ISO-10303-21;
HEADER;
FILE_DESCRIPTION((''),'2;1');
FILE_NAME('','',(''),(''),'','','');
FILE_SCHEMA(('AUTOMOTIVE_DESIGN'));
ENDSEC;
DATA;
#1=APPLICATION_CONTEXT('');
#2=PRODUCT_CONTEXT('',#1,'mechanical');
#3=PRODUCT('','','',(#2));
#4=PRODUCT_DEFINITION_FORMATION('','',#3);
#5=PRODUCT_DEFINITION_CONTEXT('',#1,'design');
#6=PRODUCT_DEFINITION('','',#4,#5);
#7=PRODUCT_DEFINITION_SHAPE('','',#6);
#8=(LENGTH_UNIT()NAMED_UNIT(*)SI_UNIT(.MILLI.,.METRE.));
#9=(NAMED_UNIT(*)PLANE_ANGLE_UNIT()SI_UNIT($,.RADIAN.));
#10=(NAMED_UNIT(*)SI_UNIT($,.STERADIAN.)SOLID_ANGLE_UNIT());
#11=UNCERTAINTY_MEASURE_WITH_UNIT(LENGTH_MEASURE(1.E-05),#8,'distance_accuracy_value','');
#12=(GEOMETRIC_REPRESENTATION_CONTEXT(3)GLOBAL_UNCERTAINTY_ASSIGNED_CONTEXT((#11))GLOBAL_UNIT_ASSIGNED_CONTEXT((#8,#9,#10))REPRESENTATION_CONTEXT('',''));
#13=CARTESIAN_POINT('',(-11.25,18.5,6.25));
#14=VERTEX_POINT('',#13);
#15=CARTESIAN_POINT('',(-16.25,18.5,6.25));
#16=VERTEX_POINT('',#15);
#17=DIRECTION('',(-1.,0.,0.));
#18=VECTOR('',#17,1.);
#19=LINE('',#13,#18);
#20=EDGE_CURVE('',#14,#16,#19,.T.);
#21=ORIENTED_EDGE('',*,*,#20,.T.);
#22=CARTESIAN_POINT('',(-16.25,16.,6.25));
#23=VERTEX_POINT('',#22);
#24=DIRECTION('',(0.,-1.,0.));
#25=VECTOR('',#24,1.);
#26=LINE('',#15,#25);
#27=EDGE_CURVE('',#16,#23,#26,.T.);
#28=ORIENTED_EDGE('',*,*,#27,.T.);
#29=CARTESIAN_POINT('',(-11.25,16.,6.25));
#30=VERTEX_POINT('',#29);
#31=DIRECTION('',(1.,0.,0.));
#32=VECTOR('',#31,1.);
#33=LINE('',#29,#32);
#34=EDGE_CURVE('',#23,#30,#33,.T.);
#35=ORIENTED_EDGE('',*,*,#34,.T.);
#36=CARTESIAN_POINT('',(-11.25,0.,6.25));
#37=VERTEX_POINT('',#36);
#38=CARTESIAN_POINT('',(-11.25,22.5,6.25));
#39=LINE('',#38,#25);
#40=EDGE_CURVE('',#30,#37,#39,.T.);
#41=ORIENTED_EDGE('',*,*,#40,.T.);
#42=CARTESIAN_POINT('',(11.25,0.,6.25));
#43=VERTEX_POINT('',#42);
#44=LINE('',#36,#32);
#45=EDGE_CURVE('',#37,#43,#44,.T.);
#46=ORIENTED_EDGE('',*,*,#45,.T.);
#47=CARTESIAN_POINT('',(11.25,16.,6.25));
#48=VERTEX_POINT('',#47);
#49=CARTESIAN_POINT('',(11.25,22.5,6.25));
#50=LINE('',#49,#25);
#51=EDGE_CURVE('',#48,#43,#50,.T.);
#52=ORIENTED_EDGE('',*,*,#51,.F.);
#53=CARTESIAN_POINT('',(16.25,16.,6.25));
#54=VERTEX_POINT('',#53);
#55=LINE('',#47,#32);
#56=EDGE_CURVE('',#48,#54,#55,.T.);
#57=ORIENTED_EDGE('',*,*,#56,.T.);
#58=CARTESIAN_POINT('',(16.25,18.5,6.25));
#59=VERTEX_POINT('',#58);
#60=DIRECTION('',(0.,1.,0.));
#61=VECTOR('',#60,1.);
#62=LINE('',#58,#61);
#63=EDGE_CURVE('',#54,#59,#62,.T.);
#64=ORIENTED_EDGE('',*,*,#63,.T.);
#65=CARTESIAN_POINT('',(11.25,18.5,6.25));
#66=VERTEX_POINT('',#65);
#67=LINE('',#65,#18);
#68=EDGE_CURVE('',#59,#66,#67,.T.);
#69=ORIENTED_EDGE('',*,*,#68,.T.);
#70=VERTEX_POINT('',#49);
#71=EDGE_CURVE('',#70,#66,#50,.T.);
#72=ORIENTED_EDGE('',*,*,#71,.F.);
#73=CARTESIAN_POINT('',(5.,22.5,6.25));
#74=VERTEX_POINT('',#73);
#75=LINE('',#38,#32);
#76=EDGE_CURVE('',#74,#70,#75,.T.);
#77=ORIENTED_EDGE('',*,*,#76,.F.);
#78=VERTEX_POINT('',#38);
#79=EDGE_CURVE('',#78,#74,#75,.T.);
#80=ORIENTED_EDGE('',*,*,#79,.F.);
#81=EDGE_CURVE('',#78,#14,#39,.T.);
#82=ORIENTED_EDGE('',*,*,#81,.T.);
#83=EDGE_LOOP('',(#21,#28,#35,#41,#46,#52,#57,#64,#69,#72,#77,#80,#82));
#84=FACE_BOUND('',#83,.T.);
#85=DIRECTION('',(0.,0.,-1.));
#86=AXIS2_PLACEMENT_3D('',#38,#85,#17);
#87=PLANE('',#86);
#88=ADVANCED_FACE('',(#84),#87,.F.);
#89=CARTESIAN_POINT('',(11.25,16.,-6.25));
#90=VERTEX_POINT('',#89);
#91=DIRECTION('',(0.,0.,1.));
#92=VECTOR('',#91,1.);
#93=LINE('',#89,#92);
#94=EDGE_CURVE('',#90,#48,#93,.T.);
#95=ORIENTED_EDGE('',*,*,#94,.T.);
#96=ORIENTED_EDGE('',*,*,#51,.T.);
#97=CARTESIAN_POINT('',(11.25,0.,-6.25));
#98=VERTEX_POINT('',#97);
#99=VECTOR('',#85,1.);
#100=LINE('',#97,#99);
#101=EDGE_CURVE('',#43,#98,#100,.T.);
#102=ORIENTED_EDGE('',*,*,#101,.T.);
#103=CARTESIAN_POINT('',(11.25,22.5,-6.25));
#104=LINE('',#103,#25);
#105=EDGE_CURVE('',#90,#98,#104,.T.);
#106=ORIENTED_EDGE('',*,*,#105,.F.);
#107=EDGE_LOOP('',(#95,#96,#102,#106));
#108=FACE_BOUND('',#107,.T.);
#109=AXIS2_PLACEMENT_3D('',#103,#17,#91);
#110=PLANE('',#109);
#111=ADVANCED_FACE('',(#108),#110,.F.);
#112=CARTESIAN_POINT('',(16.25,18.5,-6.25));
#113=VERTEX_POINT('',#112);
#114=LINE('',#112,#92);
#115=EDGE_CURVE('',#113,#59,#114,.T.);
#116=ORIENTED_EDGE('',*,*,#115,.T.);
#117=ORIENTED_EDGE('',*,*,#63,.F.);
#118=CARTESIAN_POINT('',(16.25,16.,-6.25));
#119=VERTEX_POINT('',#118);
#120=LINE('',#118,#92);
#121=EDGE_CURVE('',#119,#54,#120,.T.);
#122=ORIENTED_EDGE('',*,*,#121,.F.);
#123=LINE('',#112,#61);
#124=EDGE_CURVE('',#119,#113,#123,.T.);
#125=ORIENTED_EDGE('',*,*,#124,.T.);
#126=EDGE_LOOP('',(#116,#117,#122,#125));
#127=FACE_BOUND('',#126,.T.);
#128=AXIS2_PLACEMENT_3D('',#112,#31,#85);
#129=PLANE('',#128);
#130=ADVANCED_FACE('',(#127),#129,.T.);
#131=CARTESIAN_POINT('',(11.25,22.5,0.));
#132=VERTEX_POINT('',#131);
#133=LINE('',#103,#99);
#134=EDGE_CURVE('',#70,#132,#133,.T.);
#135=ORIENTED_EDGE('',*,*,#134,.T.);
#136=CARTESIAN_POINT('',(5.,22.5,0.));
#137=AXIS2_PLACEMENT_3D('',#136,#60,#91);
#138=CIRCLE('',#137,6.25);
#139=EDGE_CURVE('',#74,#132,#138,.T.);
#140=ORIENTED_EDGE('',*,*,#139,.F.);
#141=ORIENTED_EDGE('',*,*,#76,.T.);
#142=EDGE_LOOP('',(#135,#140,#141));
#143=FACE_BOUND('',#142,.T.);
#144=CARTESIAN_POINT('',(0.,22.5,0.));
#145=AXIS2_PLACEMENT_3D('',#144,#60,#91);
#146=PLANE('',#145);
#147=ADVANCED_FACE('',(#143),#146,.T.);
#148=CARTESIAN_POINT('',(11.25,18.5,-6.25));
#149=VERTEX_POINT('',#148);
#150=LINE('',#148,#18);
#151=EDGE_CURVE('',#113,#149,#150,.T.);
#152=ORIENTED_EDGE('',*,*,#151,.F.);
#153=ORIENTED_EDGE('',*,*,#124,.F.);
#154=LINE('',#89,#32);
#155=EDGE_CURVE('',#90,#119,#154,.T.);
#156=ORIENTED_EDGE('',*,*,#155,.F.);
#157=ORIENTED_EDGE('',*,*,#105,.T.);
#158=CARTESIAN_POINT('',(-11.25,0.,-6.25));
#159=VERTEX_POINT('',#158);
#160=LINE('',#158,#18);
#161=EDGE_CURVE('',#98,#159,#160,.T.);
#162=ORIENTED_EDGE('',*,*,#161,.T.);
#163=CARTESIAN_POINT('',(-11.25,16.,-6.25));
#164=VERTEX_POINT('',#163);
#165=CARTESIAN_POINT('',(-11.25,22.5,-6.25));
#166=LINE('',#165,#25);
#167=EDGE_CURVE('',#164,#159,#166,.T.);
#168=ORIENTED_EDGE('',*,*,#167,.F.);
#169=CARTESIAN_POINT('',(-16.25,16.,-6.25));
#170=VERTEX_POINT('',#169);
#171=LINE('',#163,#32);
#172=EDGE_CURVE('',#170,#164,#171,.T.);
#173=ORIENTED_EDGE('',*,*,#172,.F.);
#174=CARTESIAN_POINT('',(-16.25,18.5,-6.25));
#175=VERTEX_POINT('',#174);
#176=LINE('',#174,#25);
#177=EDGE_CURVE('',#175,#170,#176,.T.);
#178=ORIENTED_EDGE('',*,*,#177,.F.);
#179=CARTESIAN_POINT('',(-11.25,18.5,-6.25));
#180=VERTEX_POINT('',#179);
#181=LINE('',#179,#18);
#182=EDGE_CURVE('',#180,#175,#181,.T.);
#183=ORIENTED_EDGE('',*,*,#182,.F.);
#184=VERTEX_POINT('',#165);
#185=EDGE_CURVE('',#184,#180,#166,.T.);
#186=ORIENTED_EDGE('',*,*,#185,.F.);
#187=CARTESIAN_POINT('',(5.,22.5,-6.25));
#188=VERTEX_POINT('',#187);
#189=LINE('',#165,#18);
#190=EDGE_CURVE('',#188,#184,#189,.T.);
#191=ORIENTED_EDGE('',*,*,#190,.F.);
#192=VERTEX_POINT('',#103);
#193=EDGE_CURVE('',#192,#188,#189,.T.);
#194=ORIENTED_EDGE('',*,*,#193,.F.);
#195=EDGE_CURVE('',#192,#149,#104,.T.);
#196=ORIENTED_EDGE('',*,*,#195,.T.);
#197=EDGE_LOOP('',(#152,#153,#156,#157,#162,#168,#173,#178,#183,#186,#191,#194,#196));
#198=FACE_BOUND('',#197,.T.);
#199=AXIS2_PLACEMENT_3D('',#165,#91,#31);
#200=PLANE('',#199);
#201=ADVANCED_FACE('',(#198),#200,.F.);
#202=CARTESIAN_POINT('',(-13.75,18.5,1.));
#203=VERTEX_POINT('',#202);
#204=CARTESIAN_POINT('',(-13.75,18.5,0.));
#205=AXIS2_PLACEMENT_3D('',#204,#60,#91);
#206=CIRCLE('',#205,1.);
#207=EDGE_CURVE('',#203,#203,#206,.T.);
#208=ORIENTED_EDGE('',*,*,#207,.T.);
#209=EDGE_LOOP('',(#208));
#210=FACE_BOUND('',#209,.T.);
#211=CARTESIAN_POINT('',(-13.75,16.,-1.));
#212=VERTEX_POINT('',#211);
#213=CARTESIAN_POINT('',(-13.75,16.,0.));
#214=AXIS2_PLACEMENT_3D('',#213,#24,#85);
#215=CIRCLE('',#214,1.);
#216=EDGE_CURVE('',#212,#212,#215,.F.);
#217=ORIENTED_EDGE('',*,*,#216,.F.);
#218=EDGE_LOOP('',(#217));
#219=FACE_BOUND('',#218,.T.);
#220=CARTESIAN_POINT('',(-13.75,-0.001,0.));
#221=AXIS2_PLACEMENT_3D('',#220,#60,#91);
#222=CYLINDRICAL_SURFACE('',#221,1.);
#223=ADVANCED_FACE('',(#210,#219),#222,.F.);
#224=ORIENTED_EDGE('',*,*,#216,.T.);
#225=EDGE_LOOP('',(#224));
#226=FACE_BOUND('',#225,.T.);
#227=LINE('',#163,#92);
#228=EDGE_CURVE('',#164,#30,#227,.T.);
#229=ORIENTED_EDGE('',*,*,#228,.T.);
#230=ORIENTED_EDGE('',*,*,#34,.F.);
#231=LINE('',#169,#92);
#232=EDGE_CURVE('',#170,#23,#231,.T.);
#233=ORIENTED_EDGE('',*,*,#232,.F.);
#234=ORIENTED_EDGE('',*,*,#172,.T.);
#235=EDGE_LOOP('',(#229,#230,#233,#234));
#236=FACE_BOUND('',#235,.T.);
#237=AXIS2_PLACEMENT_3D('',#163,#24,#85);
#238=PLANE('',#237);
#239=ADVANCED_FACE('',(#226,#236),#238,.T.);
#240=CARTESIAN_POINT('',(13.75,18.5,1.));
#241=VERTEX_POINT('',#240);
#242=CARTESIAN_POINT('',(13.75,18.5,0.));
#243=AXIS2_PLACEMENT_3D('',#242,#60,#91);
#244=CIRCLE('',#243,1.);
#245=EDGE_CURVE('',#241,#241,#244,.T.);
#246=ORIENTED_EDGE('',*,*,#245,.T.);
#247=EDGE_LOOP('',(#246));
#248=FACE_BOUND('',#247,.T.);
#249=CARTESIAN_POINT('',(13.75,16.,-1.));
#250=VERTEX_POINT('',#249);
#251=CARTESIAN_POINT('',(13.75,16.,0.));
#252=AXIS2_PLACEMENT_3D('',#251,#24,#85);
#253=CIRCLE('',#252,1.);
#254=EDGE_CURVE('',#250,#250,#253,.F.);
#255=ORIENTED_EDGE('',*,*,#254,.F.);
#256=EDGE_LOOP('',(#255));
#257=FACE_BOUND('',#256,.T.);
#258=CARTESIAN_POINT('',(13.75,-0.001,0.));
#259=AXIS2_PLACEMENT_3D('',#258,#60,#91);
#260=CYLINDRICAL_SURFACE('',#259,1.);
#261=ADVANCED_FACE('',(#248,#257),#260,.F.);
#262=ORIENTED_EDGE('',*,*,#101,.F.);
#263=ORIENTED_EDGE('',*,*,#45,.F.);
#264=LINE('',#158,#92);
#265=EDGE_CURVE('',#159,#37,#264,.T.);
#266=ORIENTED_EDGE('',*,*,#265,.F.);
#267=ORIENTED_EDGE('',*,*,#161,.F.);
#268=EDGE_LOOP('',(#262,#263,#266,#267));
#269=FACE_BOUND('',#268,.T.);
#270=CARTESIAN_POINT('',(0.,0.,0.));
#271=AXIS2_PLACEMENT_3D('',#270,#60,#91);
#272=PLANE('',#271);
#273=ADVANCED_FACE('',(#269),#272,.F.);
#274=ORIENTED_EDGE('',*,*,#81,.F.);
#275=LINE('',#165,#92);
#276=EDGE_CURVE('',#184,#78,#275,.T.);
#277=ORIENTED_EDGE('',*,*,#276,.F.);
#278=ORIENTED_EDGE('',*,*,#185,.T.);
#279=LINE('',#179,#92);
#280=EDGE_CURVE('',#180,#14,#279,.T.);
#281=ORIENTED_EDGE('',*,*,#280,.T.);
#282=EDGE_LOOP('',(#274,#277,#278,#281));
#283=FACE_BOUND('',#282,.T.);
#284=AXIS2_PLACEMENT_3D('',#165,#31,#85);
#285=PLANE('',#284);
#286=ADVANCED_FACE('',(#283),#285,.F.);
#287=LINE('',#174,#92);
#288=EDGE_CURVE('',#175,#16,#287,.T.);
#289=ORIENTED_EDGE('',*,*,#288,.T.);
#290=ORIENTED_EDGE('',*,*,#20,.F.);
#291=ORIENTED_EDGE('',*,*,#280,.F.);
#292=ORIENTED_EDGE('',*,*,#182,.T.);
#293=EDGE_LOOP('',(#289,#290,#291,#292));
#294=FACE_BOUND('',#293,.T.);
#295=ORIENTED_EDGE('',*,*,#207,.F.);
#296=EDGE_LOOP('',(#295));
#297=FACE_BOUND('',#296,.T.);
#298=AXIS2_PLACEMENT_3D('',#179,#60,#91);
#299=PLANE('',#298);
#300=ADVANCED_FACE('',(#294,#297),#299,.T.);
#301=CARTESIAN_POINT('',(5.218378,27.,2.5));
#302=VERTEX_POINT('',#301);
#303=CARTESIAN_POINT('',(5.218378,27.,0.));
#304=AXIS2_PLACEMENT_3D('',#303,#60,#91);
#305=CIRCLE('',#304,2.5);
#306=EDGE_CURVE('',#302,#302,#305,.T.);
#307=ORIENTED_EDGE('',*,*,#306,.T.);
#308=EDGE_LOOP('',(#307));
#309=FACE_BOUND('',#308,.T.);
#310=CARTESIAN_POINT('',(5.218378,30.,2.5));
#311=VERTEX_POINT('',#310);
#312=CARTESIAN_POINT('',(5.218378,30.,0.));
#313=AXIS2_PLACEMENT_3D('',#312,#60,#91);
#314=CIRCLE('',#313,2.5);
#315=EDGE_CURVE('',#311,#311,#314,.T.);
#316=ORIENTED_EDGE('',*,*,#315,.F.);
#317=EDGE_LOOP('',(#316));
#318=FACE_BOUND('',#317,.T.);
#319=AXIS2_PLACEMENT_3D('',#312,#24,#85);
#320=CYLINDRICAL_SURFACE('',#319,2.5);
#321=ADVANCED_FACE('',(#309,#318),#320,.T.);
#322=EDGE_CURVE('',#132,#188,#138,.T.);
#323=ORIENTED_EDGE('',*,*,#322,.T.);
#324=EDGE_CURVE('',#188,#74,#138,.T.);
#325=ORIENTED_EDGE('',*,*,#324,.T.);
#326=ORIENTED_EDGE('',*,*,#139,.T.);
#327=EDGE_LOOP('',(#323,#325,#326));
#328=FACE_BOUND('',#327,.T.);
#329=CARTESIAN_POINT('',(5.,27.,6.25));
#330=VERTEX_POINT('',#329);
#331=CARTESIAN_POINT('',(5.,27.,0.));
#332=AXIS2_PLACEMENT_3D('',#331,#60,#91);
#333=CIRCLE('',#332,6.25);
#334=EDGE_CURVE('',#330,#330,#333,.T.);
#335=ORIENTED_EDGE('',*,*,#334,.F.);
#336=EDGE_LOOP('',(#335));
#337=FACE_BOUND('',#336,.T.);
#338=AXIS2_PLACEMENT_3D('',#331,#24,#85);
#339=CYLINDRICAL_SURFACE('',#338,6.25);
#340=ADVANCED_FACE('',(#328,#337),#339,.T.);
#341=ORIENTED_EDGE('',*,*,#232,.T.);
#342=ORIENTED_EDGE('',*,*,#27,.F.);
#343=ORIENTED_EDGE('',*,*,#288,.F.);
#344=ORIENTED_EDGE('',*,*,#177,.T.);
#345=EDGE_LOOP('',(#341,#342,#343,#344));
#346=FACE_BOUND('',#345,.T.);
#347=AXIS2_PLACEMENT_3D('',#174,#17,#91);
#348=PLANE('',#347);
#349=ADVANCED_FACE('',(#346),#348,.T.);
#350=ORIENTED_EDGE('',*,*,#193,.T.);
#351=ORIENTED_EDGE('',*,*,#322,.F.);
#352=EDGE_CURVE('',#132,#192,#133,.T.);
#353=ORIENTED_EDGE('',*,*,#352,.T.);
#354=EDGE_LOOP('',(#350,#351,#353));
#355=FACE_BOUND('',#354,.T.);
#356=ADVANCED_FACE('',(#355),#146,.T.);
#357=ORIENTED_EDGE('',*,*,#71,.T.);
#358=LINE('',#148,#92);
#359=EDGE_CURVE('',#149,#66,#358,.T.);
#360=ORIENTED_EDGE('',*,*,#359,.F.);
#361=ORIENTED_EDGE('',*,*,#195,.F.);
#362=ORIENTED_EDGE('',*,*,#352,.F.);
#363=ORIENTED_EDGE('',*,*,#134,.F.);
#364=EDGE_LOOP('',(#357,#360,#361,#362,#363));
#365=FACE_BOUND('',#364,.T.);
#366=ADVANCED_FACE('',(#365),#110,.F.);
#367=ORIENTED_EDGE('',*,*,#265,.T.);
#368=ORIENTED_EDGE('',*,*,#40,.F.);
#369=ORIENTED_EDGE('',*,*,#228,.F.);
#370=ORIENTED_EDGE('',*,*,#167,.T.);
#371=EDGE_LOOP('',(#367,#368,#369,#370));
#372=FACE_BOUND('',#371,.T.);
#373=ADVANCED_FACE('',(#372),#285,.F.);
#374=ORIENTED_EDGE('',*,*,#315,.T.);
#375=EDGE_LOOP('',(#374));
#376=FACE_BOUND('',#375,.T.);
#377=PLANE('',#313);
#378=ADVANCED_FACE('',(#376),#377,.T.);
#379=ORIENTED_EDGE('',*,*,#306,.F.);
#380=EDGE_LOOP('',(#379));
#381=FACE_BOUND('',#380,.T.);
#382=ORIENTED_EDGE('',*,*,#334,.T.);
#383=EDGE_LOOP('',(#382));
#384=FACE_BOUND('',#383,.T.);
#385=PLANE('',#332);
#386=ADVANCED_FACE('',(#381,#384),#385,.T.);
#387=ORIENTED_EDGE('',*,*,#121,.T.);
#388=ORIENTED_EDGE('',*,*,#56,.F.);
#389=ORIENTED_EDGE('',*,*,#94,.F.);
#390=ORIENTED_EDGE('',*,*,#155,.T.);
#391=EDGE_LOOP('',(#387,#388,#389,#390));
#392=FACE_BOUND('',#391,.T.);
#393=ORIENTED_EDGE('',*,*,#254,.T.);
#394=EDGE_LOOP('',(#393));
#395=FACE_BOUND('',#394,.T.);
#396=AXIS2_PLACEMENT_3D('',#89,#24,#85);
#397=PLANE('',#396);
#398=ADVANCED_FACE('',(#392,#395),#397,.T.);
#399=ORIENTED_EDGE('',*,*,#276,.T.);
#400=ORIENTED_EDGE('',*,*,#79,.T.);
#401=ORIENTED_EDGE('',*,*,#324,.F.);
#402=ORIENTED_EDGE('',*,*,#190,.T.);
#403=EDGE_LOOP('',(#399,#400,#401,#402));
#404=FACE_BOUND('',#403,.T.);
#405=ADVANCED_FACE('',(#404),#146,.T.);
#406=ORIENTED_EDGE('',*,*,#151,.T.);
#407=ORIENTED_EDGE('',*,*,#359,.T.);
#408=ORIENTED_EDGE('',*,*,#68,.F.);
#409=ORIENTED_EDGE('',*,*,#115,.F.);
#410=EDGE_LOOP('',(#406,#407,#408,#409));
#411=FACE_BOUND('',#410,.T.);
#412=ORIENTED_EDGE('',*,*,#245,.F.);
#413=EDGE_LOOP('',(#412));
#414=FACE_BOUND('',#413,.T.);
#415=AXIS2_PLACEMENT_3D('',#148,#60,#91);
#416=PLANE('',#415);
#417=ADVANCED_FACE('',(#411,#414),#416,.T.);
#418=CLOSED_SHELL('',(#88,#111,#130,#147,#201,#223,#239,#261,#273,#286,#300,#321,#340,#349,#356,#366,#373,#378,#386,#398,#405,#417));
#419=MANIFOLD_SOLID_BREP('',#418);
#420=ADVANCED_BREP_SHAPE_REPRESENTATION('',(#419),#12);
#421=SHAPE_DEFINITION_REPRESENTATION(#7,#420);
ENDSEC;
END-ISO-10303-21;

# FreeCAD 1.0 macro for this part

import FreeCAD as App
import Part
import Sketcher
Q = App.Units.Quantity


def add_polygon(sketch, points):
    """Adds a closed chain of lines whose ends are joined by coincident constraints."""
    first, n = sketch.GeometryCount, len(points)
    for a, b in zip(points, points[1:] + points[:1]):
        sketch.addGeometry(Part.LineSegment(App.Vector(*a, 0), App.Vector(*b, 0)), False)
    for i in range(n):
        sketch.addConstraint(Sketcher.Constraint("Coincident", first + i, 2, first + (i + 1) % n, 1))

doc = App.newDocument("Part")
body = doc.addObject("PartDesign::Body", "Body")

sketch1 = body.newObject("Sketcher::SketchObject", "Sketch")
sketch1.AttachmentSupport = (doc.getObject("XZ_Plane"), [""])
sketch1.MapMode = "FlatFace"
add_polygon(sketch1, [(-11, -6), (-11, 6), (11, 6), (11, -6)])
sketch1.addConstraint(Sketcher.Constraint("Vertical", 0))
sketch1.addConstraint(Sketcher.Constraint("Horizontal", 1))
sketch1.addConstraint(Sketcher.Constraint("Vertical", 2))
sketch1.addConstraint(Sketcher.Constraint("Horizontal", 3))
sketch1.addConstraint(Sketcher.Constraint("Symmetric", 0, 2, 2, 2, -1, 1))
sketch1.addConstraint(Sketcher.Constraint("DistanceX", 1, 1, 1, 2, Q("22.5 mm")))
sketch1.addConstraint(Sketcher.Constraint("DistanceY", 0, 1, 0, 2, Q("12.5 mm")))
pad1 = body.newObject("PartDesign::Pad", "Pad")
pad1.Profile = sketch1
pad1.Length = 22.5
pad1.Reversed = True

sketch2 = body.newObject("Sketcher::SketchObject", "Sketch001")
sketch2.AttachmentSupport = (doc.getObject("XY_Plane"), [""])
sketch2.MapMode = "FlatFace"
sketch2.AttachmentOffset = App.Placement(App.Vector(0, 0, 6.25), App.Rotation())
add_polygon(sketch2, [(11.2, 18.5), (11.2, 16), (16.2, 16), (16.2, 18.5)])
add_polygon(sketch2, [(-16.2, 18.5), (-16.2, 16), (-11.2, 16), (-11.2, 18.5)])
sketch2.addConstraint(Sketcher.Constraint("Vertical", 0))
sketch2.addConstraint(Sketcher.Constraint("Horizontal", 1))
sketch2.addConstraint(Sketcher.Constraint("Vertical", 2))
sketch2.addConstraint(Sketcher.Constraint("Horizontal", 3))
sketch2.addConstraint(Sketcher.Constraint("Vertical", 4))
sketch2.addConstraint(Sketcher.Constraint("Horizontal", 5))
sketch2.addConstraint(Sketcher.Constraint("Vertical", 6))
sketch2.addConstraint(Sketcher.Constraint("Horizontal", 7))
sketch2.addConstraint(Sketcher.Constraint("Symmetric", 1, 2, 4, 2, -2))
sketch2.addConstraint(Sketcher.Constraint("Symmetric", 3, 2, 6, 2, -2))
sketch2.addConstraint(Sketcher.Constraint("DistanceX", 1, 1, 1, 2, Q("5 mm")))
sketch2.addConstraint(Sketcher.Constraint("DistanceY", 0, 2, 0, 1, Q("2.5 mm")))
sketch2.addConstraint(Sketcher.Constraint("DistanceY", -1, 1, 0, 2, Q("16 mm")))
sketch2.addConstraint(Sketcher.Constraint("DistanceX", 4, 2, 0, 2, Q("27.5 mm")))
pad2 = body.newObject("PartDesign::Pad", "Pad001")
pad2.Profile = sketch2
pad2.Length = 12.5
pad2.Reversed = True

sketch3 = body.newObject("Sketcher::SketchObject", "Sketch002")
sketch3.AttachmentSupport = (doc.getObject("XZ_Plane"), [""])
sketch3.MapMode = "FlatFace"
sketch3.AttachmentOffset = App.Placement(App.Vector(0, 0, -18.5), App.Rotation())
sketch3.addGeometry(Part.Circle(App.Vector(13.8, 0, 0), App.Vector(0, 0, 1), 1), False)
sketch3.addConstraint(Sketcher.Constraint("PointOnObject", 0, 3, -1))
sketch3.addConstraint(Sketcher.Constraint("Diameter", 0, Q("2 mm")))
sketch3.addConstraint(Sketcher.Constraint("DistanceX", -1, 1, 0, 3, Q("13.75 mm")))
pocket1 = body.newObject("PartDesign::Pocket", "Pocket")
pocket1.Profile = sketch3
pocket1.Type = "UpToFirst"
pocket1.Reversed = True

sketch4 = body.newObject("Sketcher::SketchObject", "Sketch003")
sketch4.AttachmentSupport = (doc.getObject("XZ_Plane"), [""])
sketch4.MapMode = "FlatFace"
sketch4.AttachmentOffset = App.Placement(App.Vector(0, 0, -18.5), App.Rotation())
sketch4.addGeometry(Part.Circle(App.Vector(-13.8, 0, 0), App.Vector(0, 0, 1), 1), False)
sketch4.addConstraint(Sketcher.Constraint("PointOnObject", 0, 3, -1))
sketch4.addConstraint(Sketcher.Constraint("Diameter", 0, Q("2 mm")))
sketch4.addConstraint(Sketcher.Constraint("DistanceX", 0, 3, -1, 1, Q("13.75 mm")))
pocket2 = body.newObject("PartDesign::Pocket", "Pocket001")
pocket2.Profile = sketch4
pocket2.Type = "UpToFirst"
pocket2.Reversed = True

sketch5 = body.newObject("Sketcher::SketchObject", "Sketch004")
sketch5.AttachmentSupport = (doc.getObject("XZ_Plane"), [""])
sketch5.MapMode = "FlatFace"
sketch5.AttachmentOffset = App.Placement(App.Vector(0, 0, -22.5), App.Rotation())
sketch5.addGeometry(Part.Circle(App.Vector(5, 0, 0), App.Vector(0, 0, 1), 6), False)
sketch5.addConstraint(Sketcher.Constraint("PointOnObject", 0, 3, -1))
sketch5.addConstraint(Sketcher.Constraint("Diameter", 0, Q("12.5 mm")))
sketch5.addConstraint(Sketcher.Constraint("DistanceX", -1, 1, 0, 3, Q("5 mm")))
pad3 = body.newObject("PartDesign::Pad", "Pad002")
pad3.Profile = sketch5
pad3.Length = 4.5
pad3.Reversed = True

sketch6 = body.newObject("Sketcher::SketchObject", "Sketch005")
sketch6.AttachmentSupport = (doc.getObject("XZ_Plane"), [""])
sketch6.MapMode = "FlatFace"
sketch6.AttachmentOffset = App.Placement(App.Vector(0, 0, -27), App.Rotation())
sketch6.addGeometry(Part.Circle(App.Vector(5.2, 0, 0), App.Vector(0, 0, 1), 2.5), False)
sketch6.addConstraint(Sketcher.Constraint("PointOnObject", 0, 3, -1))
sketch6.addConstraint(Sketcher.Constraint("Diameter", 0, Q("5 mm")))
sketch6.addConstraint(Sketcher.Constraint("DistanceX", -1, 1, 0, 3, Q("5.218378 mm")))
pad4 = body.newObject("PartDesign::Pad", "Pad003")
pad4.Profile = sketch6
pad4.Length = 3
pad4.Reversed = True

doc.recompute()
